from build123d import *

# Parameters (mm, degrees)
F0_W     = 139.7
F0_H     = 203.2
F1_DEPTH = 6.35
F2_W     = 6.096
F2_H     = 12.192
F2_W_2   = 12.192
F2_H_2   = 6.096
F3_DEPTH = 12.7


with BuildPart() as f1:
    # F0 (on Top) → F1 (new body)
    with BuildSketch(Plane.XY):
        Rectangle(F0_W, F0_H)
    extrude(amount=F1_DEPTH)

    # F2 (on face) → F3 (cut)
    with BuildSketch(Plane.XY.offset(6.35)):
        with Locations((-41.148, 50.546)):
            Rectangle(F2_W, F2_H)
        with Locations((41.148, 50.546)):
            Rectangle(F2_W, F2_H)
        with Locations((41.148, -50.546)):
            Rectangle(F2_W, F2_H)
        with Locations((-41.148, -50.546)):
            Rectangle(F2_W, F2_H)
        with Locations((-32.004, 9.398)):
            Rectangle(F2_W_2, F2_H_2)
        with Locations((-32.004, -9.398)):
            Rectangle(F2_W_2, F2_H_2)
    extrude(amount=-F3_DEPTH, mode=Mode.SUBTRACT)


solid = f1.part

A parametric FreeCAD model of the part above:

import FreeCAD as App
import Part
import Sketcher
from FreeCAD import Vector
Q = App.Units.Quantity


def add_polygon(sketch, points):
    """Adds a closed chain of lines whose ends are joined by coincident constraints."""
    first, n = sketch.GeometryCount, len(points)
    for a, b in zip(points, points[1:] + points[:1]):
        sketch.addGeometry(Part.LineSegment(App.Vector(*a, 0), App.Vector(*b, 0)), False)
    for i in range(n):
        sketch.addConstraint(Sketcher.Constraint("Coincident", first + i, 2, first + (i + 1) % n, 1))

doc = App.newDocument("Part")
params = doc.addObject("Spreadsheet::Sheet", "Params")
for row, (alias, value) in enumerate([
    ("sketch1_height", "8 in"),
    ("sketch1_width", "5.5 in"),
    ("pad1_length", "0.25 in"),
    ("sketch2_width", "0.24 in"),
    ("sketch2_width2", "0.48 in"),
    ("pocket1_length", "0.5 in"),
], start=1):
    params.set(f"A{row}", alias)
    params.set(f"B{row}", "=" + value)
    params.setAlias(f"B{row}", alias)

body = doc.addObject("PartDesign::Body", "Body")

# Sketch on XY plane
sketch1 = doc.addObject("Sketcher::SketchObject", "Sketch")
body.addObject(sketch1)
sketch1.AttachmentSupport = (doc.XY_Plane, [""])
sketch1.MapMode = "FlatFace"
add_polygon(sketch1, [(-69.85, 101.6), (-69.85, -101.6), (69.85, -101.6), (69.85, 101.6)])  # lines 0-3
sketch1.addConstraint(Sketcher.Constraint("Vertical", 0))
sketch1.addConstraint(Sketcher.Constraint("Horizontal", 1))
sketch1.addConstraint(Sketcher.Constraint("Vertical", 2))
sketch1.addConstraint(Sketcher.Constraint("Horizontal", 3))
sketch1.addConstraint(Sketcher.Constraint("Symmetric", 0, 2, 2, 2, -1, 1))
sketch1.addConstraint(Sketcher.Constraint("DistanceY", 0, 2, 0, 1, Q("8 in")))
sketch1.addConstraint(Sketcher.Constraint("DistanceX", 1, 1, 1, 2, Q("5.5 in")))
sketch1.setExpression("Constraints[9]", "Params.sketch1_height")
sketch1.setExpression("Constraints[10]", "Params.sketch1_width")
pad1 = doc.addObject("PartDesign::Pad", "Pad")
body.addObject(pad1)
pad1.Profile = sketch1
pad1.setExpression("Length", "Params.pad1_length")

# Sketch on XY plane
sketch2 = doc.addObject("Sketcher::SketchObject", "Sketch001")
body.addObject(sketch2)
sketch2.AttachmentSupport = (doc.XY_Plane, [""])
sketch2.MapMode = "FlatFace"
sketch2.AttachmentOffset = App.Placement(Vector(0, 0, 0.25 * 25.4), App.Rotation())
add_polygon(sketch2, [(-44.196, 56.642), (-44.196, 44.45), (-38.1, 44.45), (-38.1, 56.642)])  # lines 0-3
add_polygon(sketch2, [(38.1, 56.642), (38.1, 44.45), (44.196, 44.45), (44.196, 56.642)])  # lines 4-7
add_polygon(sketch2, [(38.1, -44.45), (38.1, -56.642), (44.196, -56.642), (44.196, -44.45)])  # lines 8-11
add_polygon(sketch2, [(-44.196, -44.45), (-44.196, -56.642), (-38.1, -56.642), (-38.1, -44.45)])  # lines 12-15
add_polygon(sketch2, [(-38.1, 12.446), (-38.1, 6.35), (-25.908, 6.35), (-25.908, 12.446)])  # lines 16-19
add_polygon(sketch2, [(-38.1, -6.35), (-38.1, -12.446), (-25.908, -12.446), (-25.908, -6.35)])  # lines 20-23
sketch2.addConstraint(Sketcher.Constraint("Vertical", 0))
sketch2.addConstraint(Sketcher.Constraint("Horizontal", 1))
sketch2.addConstraint(Sketcher.Constraint("Vertical", 2))
sketch2.addConstraint(Sketcher.Constraint("Horizontal", 3))
sketch2.addConstraint(Sketcher.Constraint("Vertical", 4))
sketch2.addConstraint(Sketcher.Constraint("Horizontal", 5))
sketch2.addConstraint(Sketcher.Constraint("Vertical", 6))
sketch2.addConstraint(Sketcher.Constraint("Horizontal", 7))
sketch2.addConstraint(Sketcher.Constraint("Vertical", 8))
sketch2.addConstraint(Sketcher.Constraint("Horizontal", 9))
sketch2.addConstraint(Sketcher.Constraint("Vertical", 10))
sketch2.addConstraint(Sketcher.Constraint("Horizontal", 11))
sketch2.addConstraint(Sketcher.Constraint("Vertical", 12))
sketch2.addConstraint(Sketcher.Constraint("Horizontal", 13))
sketch2.addConstraint(Sketcher.Constraint("Vertical", 14))
sketch2.addConstraint(Sketcher.Constraint("Horizontal", 15))
sketch2.addConstraint(Sketcher.Constraint("Vertical", 16))
sketch2.addConstraint(Sketcher.Constraint("Horizontal", 17))
sketch2.addConstraint(Sketcher.Constraint("Vertical", 18))
sketch2.addConstraint(Sketcher.Constraint("Horizontal", 19))
sketch2.addConstraint(Sketcher.Constraint("Vertical", 20))
sketch2.addConstraint(Sketcher.Constraint("Horizontal", 21))
sketch2.addConstraint(Sketcher.Constraint("Vertical", 22))
sketch2.addConstraint(Sketcher.Constraint("Horizontal", 23))
sketch2.addConstraint(Sketcher.Constraint("Symmetric", 2, 2, 8, 2, -1, 1))
sketch2.addConstraint(Sketcher.Constraint("Symmetric", 0, 2, 10, 2, -1, 1))
sketch2.addConstraint(Sketcher.Constraint("Symmetric", 6, 2, 12, 2, -1, 1))
sketch2.addConstraint(Sketcher.Constraint("Symmetric", 4, 2, 14, 2, -1, 1))
sketch2.addConstraint(Sketcher.Constraint("Symmetric", 1, 2, 4, 2, -2))
sketch2.addConstraint(Sketcher.Constraint("Symmetric", 3, 2, 6, 2, -2))
sketch2.addConstraint(Sketcher.Constraint("Symmetric", 19, 2, 20, 2, -1))
sketch2.addConstraint(Sketcher.Constraint("Symmetric", 17, 2, 22, 2, -1))
sketch2.addConstraint(Sketcher.Constraint("Vertical", 14, 2, 16, 2))
sketch2.addConstraint(Sketcher.Constraint("Equal", 23, 0))
sketch2.addConstraint(Sketcher.Constraint("Equal", 15, 16))
sketch2.addConstraint(Sketcher.Constraint("DistanceX", 1, 2, 4, 2, Q("3 in")))
sketch2.addConstraint(Sketcher.Constraint("DistanceY", 14, 2, 16, 2, Q("2 in")))
sketch2.addConstraint(Sketcher.Constraint("DistanceX", 1, 1, 1, 2, Q("0.24 in")))
sketch2.addConstraint(Sketcher.Constraint("DistanceX", 17, 1, 17, 2, Q("0.48 in")))
sketch2.addConstraint(Sketcher.Constraint("DistanceY", 10, 2, 5, 2, Q("3.5 in")))
sketch2.setExpression("Constraints[61]", "Params.sketch2_width")
sketch2.setExpression("Constraints[62]", "Params.sketch2_width2")
pocket1 = doc.addObject("PartDesign::Pocket", "Pocket")
body.addObject(pocket1)
pocket1.Profile = sketch2
pocket1.setExpression("Length", "Params.pocket1_length")

doc.recompute()
